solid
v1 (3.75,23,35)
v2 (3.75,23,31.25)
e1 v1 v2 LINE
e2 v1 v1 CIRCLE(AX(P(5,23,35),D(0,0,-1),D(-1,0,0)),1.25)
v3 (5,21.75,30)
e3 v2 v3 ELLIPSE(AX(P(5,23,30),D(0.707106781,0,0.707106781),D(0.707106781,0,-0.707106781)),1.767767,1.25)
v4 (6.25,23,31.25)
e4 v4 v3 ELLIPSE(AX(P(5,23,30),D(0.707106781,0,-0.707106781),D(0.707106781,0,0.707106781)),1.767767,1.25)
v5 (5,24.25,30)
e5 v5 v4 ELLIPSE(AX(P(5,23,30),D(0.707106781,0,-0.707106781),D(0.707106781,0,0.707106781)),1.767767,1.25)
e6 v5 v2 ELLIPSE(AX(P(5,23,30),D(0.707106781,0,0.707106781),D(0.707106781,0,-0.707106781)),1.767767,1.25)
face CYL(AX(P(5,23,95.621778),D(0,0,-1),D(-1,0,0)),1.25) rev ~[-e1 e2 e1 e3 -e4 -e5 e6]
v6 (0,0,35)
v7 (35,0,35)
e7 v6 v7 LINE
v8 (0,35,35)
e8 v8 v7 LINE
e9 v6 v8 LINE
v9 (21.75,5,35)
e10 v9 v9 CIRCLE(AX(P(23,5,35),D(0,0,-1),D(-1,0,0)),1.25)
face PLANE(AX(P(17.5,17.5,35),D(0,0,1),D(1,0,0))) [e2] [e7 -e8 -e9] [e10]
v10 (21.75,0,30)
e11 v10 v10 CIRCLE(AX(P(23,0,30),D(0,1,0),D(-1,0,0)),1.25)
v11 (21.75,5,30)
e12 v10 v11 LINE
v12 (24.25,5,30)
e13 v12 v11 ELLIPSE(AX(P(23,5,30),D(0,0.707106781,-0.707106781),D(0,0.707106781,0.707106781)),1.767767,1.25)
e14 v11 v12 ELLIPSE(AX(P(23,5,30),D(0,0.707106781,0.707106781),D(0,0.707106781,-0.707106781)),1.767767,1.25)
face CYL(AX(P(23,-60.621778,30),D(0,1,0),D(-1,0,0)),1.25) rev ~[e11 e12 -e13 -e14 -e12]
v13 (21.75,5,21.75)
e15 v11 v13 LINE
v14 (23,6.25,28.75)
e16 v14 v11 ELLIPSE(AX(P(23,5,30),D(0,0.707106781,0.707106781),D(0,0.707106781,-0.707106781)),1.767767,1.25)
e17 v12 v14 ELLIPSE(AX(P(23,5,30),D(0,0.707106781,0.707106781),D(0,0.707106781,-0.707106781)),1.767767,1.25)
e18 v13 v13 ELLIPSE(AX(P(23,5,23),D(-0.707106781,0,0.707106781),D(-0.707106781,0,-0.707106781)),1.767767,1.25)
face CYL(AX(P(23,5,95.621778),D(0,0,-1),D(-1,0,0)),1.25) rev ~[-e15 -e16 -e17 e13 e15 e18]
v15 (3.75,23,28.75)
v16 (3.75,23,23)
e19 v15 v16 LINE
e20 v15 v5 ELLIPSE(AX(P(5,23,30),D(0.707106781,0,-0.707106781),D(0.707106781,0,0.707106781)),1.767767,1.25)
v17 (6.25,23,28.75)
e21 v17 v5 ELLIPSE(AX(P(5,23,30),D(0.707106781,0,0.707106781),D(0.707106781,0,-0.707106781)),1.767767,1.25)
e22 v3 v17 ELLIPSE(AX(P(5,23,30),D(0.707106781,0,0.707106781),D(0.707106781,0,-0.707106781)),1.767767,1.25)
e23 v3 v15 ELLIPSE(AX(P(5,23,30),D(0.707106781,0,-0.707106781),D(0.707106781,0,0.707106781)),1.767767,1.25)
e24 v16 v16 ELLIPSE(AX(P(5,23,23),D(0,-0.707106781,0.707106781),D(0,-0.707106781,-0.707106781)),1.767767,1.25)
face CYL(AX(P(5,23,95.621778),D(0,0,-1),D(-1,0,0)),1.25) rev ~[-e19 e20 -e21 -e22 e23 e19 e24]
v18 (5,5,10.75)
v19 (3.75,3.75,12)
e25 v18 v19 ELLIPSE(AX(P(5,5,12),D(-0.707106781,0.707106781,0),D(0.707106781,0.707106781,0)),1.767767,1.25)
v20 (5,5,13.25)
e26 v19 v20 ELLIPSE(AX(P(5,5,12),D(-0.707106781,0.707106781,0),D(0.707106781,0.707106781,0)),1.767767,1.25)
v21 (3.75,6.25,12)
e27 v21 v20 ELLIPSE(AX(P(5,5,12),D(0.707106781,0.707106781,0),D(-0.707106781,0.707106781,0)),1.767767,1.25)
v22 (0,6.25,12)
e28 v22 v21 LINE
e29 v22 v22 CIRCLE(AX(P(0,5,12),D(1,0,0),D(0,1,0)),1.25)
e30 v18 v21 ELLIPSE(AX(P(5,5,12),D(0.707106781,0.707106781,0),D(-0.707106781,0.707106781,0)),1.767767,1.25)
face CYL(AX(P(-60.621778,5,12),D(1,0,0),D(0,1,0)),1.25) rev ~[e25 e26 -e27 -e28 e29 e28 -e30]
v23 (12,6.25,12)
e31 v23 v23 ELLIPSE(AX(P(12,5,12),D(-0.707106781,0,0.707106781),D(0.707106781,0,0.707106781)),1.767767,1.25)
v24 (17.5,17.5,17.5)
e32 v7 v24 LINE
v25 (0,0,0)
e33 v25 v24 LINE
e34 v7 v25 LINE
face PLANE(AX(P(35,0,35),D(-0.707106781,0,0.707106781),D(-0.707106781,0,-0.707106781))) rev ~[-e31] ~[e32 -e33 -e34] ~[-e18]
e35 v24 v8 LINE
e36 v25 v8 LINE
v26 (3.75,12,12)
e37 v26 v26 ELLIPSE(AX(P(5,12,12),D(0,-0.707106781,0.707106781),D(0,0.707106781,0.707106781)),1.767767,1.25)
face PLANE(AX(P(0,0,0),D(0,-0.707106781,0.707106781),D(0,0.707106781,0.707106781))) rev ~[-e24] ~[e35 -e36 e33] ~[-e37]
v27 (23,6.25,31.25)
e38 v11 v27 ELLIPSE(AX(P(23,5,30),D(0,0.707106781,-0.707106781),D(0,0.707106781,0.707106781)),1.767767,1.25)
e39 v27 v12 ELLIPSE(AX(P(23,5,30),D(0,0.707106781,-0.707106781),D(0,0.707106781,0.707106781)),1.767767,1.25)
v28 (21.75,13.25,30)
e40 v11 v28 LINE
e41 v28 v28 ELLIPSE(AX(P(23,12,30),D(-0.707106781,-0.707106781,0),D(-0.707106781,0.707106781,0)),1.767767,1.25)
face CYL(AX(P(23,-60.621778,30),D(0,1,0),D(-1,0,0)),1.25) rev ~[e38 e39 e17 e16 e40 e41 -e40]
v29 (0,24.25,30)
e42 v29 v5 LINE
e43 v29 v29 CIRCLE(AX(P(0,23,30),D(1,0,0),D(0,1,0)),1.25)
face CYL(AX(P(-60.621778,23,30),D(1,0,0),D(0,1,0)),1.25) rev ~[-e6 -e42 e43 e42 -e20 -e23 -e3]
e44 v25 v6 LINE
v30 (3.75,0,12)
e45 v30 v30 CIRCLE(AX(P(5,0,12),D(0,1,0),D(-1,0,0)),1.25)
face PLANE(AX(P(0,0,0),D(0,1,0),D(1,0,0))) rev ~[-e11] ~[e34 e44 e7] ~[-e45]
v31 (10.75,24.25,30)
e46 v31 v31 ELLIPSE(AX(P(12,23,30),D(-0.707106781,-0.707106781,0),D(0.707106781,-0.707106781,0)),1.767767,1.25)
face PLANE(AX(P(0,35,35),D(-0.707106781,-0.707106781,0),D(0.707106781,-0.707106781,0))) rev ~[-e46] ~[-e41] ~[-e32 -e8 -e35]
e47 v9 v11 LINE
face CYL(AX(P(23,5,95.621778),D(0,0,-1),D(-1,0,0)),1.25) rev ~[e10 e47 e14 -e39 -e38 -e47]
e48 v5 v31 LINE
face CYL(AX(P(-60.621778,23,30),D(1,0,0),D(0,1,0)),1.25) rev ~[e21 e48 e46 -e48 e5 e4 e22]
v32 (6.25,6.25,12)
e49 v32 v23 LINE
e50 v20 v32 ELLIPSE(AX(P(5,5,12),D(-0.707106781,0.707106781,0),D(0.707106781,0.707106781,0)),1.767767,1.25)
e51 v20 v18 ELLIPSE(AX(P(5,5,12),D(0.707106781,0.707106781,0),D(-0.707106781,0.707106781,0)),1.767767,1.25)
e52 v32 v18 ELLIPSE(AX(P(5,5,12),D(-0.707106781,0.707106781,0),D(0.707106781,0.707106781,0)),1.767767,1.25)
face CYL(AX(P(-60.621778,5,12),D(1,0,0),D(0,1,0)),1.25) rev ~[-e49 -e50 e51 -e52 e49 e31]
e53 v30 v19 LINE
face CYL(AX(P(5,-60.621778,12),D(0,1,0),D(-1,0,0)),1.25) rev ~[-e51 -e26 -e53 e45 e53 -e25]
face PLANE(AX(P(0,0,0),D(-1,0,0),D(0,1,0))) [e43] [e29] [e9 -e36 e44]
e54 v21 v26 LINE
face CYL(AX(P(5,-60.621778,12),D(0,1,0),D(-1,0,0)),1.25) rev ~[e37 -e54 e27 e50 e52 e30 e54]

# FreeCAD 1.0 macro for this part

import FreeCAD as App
import Part
import Sketcher

doc = App.newDocument("Part")
params = doc.addObject("Spreadsheet::Sheet", "Params")
for row, (alias, value) in enumerate([
    ("sketch1_width", "35 mm"),
    ("pad1_length", "35 mm"),
    ("sketch2_width", "35 mm"),
    ("sketch3_width", "35 mm"),
    ("sketch4_width", "35 mm"),
    ("sketch5_diameter", "2.5 mm"),
    ("hole_diameter", "2.5 mm"),
    ("sketch6_diameter", "2.5 mm"),
    ("hole2_diameter", "2.5 mm"),
    ("sketch7_diameter", "2.5 mm"),
    ("hole3_diameter", "2.5 mm"),
], start=1):
    params.set(f"A{row}", alias)
    params.set(f"B{row}", "=" + value)
    params.setAlias(f"B{row}", alias)

body = doc.addObject("PartDesign::Body", "Body")

sketch1 = doc.addObject("Sketcher::SketchObject", "Sketch")
body.addObject(sketch1)
sketch1.AttachmentSupport = (doc.XY_Plane, [""])
sketch1.MapMode = "FlatFace"
sketch1.addGeometry(Part.LineSegment(App.Vector(0, 35, 0), App.Vector(0, 0, 0)), False)
sketch1.addGeometry(Part.LineSegment(App.Vector(0, 0, 0), App.Vector(35, 0, 0)), False)
sketch1.addGeometry(Part.LineSegment(App.Vector(35, 0, 0), App.Vector(35, 35, 0)), False)
sketch1.addGeometry(Part.LineSegment(App.Vector(35, 35, 0), App.Vector(0, 35, 0)), False)
sketch1.addConstraint(Sketcher.Constraint("Coincident", 0, 2, 1, 1))
sketch1.addConstraint(Sketcher.Constraint("Coincident", 1, 2, 2, 1))
sketch1.addConstraint(Sketcher.Constraint("Coincident", 2, 2, 3, 1))
sketch1.addConstraint(Sketcher.Constraint("Coincident", 3, 2, 0, 1))
sketch1.addConstraint(Sketcher.Constraint("Vertical", 0))
sketch1.addConstraint(Sketcher.Constraint("Horizontal", 1))
sketch1.addConstraint(Sketcher.Constraint("Vertical", 2))
sketch1.addConstraint(Sketcher.Constraint("Horizontal", 3))
sketch1.addConstraint(Sketcher.Constraint("Coincident", 0, 2, -1, 1))
sketch1.addConstraint(Sketcher.Constraint("Equal", 3, 0))
sketch1.addConstraint(Sketcher.Constraint("DistanceX", 1, 1, 1, 2, 35.0))
sketch1.setExpression("Constraints[10]", "Params.sketch1_width")
pad1 = doc.addObject("PartDesign::Pad", "Pad")
body.addObject(pad1)
pad1.Profile = sketch1
pad1.setExpression("Length", "Params.pad1_length")

sketch2 = doc.addObject("Sketcher::SketchObject", "Sketch001")
body.addObject(sketch2)
sketch2.AttachmentSupport = (doc.XY_Plane, [""])
sketch2.MapMode = "FlatFace"
sketch2.AttachmentOffset = App.Placement(App.Vector(0, 0, 35), App.Rotation())
sketch2.addGeometry(Part.LineSegment(App.Vector(35, 35, 0), App.Vector(0, 35, 0)), False)
sketch2.addGeometry(Part.LineSegment(App.Vector(0, 35, 0), App.Vector(35, 0, 0)), False)
sketch2.addGeometry(Part.LineSegment(App.Vector(35, 0, 0), App.Vector(35, 35, 0)), False)
sketch2.addConstraint(Sketcher.Constraint("Coincident", 0, 2, 1, 1))
sketch2.addConstraint(Sketcher.Constraint("Coincident", 1, 2, 2, 1))
sketch2.addConstraint(Sketcher.Constraint("Coincident", 2, 2, 0, 1))
sketch2.addConstraint(Sketcher.Constraint("Horizontal", 0))
sketch2.addConstraint(Sketcher.Constraint("Vertical", 2))
sketch2.addConstraint(Sketcher.Constraint("PointOnObject", 0, 2, -2))
sketch2.addConstraint(Sketcher.Constraint("PointOnObject", 1, 2, -1))
sketch2.addConstraint(Sketcher.Constraint("Equal", 0, 2))
sketch2.addConstraint(Sketcher.Constraint("DistanceX", 0, 2, 0, 1, 35.0))
sketch2.setExpression("Constraints[8]", "Params.sketch2_width")
pocket1 = doc.addObject("PartDesign::Pocket", "Pocket")
body.addObject(pocket1)
pocket1.Profile = sketch2
pocket1.Type = "ThroughAll"

sketch3 = doc.addObject("Sketcher::SketchObject", "Sketch002")
body.addObject(sketch3)
sketch3.AttachmentSupport = (doc.XZ_Plane, [""])
sketch3.MapMode = "FlatFace"
sketch3.addGeometry(Part.LineSegment(App.Vector(35, 35, 0), App.Vector(0, 0, 0)), False)
sketch3.addGeometry(Part.LineSegment(App.Vector(0, 0, 0), App.Vector(35, 0, 0)), False)
sketch3.addGeometry(Part.LineSegment(App.Vector(35, 0, 0), App.Vector(35, 35, 0)), False)
sketch3.addConstraint(Sketcher.Constraint("Coincident", 0, 2, 1, 1))
sketch3.addConstraint(Sketcher.Constraint("Coincident", 1, 2, 2, 1))
sketch3.addConstraint(Sketcher.Constraint("Coincident", 2, 2, 0, 1))
sketch3.addConstraint(Sketcher.Constraint("Horizontal", 1))
sketch3.addConstraint(Sketcher.Constraint("Vertical", 2))
sketch3.addConstraint(Sketcher.Constraint("Coincident", 0, 2, -1, 1))
sketch3.addConstraint(Sketcher.Constraint("Equal", 1, 2))
sketch3.addConstraint(Sketcher.Constraint("DistanceX", 1, 1, 1, 2, 35.0))
sketch3.setExpression("Constraints[7]", "Params.sketch3_width")
pocket2 = doc.addObject("PartDesign::Pocket", "Pocket001")
body.addObject(pocket2)
pocket2.Profile = sketch3
pocket2.Type = "ThroughAll"

sketch4 = doc.addObject("Sketcher::SketchObject", "Sketch003")
body.addObject(sketch4)
sketch4.AttachmentSupport = (doc.YZ_Plane, [""])
sketch4.MapMode = "FlatFace"
sketch4.addGeometry(Part.LineSegment(App.Vector(35, 0, 0), App.Vector(0, 0, 0)), False)
sketch4.addGeometry(Part.LineSegment(App.Vector(0, 0, 0), App.Vector(35, 35, 0)), False)
sketch4.addGeometry(Part.LineSegment(App.Vector(35, 35, 0), App.Vector(35, 0, 0)), False)
sketch4.addConstraint(Sketcher.Constraint("Coincident", 0, 2, 1, 1))
sketch4.addConstraint(Sketcher.Constraint("Coincident", 1, 2, 2, 1))
sketch4.addConstraint(Sketcher.Constraint("Coincident", 2, 2, 0, 1))
sketch4.addConstraint(Sketcher.Constraint("Horizontal", 0))
sketch4.addConstraint(Sketcher.Constraint("Vertical", 2))
sketch4.addConstraint(Sketcher.Constraint("Coincident", 0, 2, -1, 1))
sketch4.addConstraint(Sketcher.Constraint("Equal", 0, 2))
sketch4.addConstraint(Sketcher.Constraint("DistanceX", 0, 2, 0, 1, 35.0))
sketch4.setExpression("Constraints[7]", "Params.sketch4_width")
pocket3 = doc.addObject("PartDesign::Pocket", "Pocket002")
body.addObject(pocket3)
pocket3.Profile = sketch4
pocket3.Type = "ThroughAll"
pocket3.Reversed = True

sketch5 = doc.addObject("Sketcher::SketchObject", "Sketch004")
body.addObject(sketch5)
sketch5.AttachmentSupport = (doc.XZ_Plane, [""])
sketch5.MapMode = "FlatFace"
sketch5.addGeometry(Part.Circle(App.Vector(23, 30, 0), App.Vector(0, 0, 1), 1.2), False)
sketch5.addGeometry(Part.Circle(App.Vector(5, 12, 0), App.Vector(0, 0, 1), 1.2), False)
sketch5.addConstraint(Sketcher.Constraint("Equal", 0, 1))
sketch5.addConstraint(Sketcher.Constraint("Diameter", 0, 2.5))
sketch5.addConstraint(Sketcher.Constraint("DistanceX", -1, 1, 0, 3, 23.0))
sketch5.addConstraint(Sketcher.Constraint("DistanceY", -1, 1, 0, 3, 30.0))
sketch5.addConstraint(Sketcher.Constraint("DistanceX", -1, 1, 1, 3, 5.0))
sketch5.addConstraint(Sketcher.Constraint("DistanceY", -1, 1, 1, 3, 12.0))
sketch5.setExpression("Constraints[1]", "Params.sketch5_diameter")
doc.recompute()
hole = doc.addObject("PartDesign::Hole", "Hole")
body.addObject(hole)
hole.Profile = sketch5
hole.ThreadType = "None"
hole.setExpression("Diameter", "Params.hole_diameter")
hole.DepthType = "ThroughAll"

sketch6 = doc.addObject("Sketcher::SketchObject", "Sketch005")
body.addObject(sketch6)
sketch6.AttachmentSupport = (doc.YZ_Plane, [""])
sketch6.MapMode = "FlatFace"
sketch6.addGeometry(Part.Circle(App.Vector(23, 30, 0), App.Vector(0, 0, 1), 1.2), False)
sketch6.addGeometry(Part.Circle(App.Vector(5, 12, 0), App.Vector(0, 0, 1), 1.2), False)
sketch6.addConstraint(Sketcher.Constraint("Equal", 0, 1))
sketch6.addConstraint(Sketcher.Constraint("Diameter", 0, 2.5))
sketch6.addConstraint(Sketcher.Constraint("DistanceX", -1, 1, 0, 3, 23.0))
sketch6.addConstraint(Sketcher.Constraint("DistanceY", -1, 1, 0, 3, 30.0))
sketch6.addConstraint(Sketcher.Constraint("DistanceX", -1, 1, 1, 3, 5.0))
sketch6.addConstraint(Sketcher.Constraint("DistanceY", -1, 1, 1, 3, 12.0))
sketch6.setExpression("Constraints[1]", "Params.sketch6_diameter")
doc.recompute()
hole2 = doc.addObject("PartDesign::Hole", "Hole001")
body.addObject(hole2)
hole2.Profile = sketch6
hole2.ThreadType = "None"
hole2.setExpression("Diameter", "Params.hole2_diameter")
hole2.DepthType = "ThroughAll"
hole2.Reversed = True

sketch7 = doc.addObject("Sketcher::SketchObject", "Sketch006")
body.addObject(sketch7)
sketch7.AttachmentSupport = (doc.XY_Plane, [""])
sketch7.MapMode = "FlatFace"
sketch7.AttachmentOffset = App.Placement(App.Vector(0, 0, 35), App.Rotation())
sketch7.addGeometry(Part.Circle(App.Vector(5, 23, 0), App.Vector(0, 0, 1), 1.2), False)
sketch7.addGeometry(Part.Circle(App.Vector(23, 5, 0), App.Vector(0, 0, 1), 1.2), False)
sketch7.addConstraint(Sketcher.Constraint("Equal", 0, 1))
sketch7.addConstraint(Sketcher.Constraint("Diameter", 0, 2.5))
sketch7.addConstraint(Sketcher.Constraint("DistanceX", -1, 1, 0, 3, 5.0))
sketch7.addConstraint(Sketcher.Constraint("DistanceY", -1, 1, 0, 3, 23.0))
sketch7.addConstraint(Sketcher.Constraint("DistanceX", -1, 1, 1, 3, 23.0))
sketch7.addConstraint(Sketcher.Constraint("DistanceY", -1, 1, 1, 3, 5.0))
sketch7.setExpression("Constraints[1]", "Params.sketch7_diameter")
doc.recompute()
hole3 = doc.addObject("PartDesign::Hole", "Hole002")
body.addObject(hole3)
hole3.Profile = sketch7
hole3.ThreadType = "None"
hole3.setExpression("Diameter", "Params.hole3_diameter")
hole3.DepthType = "ThroughAll"

doc.recompute()
